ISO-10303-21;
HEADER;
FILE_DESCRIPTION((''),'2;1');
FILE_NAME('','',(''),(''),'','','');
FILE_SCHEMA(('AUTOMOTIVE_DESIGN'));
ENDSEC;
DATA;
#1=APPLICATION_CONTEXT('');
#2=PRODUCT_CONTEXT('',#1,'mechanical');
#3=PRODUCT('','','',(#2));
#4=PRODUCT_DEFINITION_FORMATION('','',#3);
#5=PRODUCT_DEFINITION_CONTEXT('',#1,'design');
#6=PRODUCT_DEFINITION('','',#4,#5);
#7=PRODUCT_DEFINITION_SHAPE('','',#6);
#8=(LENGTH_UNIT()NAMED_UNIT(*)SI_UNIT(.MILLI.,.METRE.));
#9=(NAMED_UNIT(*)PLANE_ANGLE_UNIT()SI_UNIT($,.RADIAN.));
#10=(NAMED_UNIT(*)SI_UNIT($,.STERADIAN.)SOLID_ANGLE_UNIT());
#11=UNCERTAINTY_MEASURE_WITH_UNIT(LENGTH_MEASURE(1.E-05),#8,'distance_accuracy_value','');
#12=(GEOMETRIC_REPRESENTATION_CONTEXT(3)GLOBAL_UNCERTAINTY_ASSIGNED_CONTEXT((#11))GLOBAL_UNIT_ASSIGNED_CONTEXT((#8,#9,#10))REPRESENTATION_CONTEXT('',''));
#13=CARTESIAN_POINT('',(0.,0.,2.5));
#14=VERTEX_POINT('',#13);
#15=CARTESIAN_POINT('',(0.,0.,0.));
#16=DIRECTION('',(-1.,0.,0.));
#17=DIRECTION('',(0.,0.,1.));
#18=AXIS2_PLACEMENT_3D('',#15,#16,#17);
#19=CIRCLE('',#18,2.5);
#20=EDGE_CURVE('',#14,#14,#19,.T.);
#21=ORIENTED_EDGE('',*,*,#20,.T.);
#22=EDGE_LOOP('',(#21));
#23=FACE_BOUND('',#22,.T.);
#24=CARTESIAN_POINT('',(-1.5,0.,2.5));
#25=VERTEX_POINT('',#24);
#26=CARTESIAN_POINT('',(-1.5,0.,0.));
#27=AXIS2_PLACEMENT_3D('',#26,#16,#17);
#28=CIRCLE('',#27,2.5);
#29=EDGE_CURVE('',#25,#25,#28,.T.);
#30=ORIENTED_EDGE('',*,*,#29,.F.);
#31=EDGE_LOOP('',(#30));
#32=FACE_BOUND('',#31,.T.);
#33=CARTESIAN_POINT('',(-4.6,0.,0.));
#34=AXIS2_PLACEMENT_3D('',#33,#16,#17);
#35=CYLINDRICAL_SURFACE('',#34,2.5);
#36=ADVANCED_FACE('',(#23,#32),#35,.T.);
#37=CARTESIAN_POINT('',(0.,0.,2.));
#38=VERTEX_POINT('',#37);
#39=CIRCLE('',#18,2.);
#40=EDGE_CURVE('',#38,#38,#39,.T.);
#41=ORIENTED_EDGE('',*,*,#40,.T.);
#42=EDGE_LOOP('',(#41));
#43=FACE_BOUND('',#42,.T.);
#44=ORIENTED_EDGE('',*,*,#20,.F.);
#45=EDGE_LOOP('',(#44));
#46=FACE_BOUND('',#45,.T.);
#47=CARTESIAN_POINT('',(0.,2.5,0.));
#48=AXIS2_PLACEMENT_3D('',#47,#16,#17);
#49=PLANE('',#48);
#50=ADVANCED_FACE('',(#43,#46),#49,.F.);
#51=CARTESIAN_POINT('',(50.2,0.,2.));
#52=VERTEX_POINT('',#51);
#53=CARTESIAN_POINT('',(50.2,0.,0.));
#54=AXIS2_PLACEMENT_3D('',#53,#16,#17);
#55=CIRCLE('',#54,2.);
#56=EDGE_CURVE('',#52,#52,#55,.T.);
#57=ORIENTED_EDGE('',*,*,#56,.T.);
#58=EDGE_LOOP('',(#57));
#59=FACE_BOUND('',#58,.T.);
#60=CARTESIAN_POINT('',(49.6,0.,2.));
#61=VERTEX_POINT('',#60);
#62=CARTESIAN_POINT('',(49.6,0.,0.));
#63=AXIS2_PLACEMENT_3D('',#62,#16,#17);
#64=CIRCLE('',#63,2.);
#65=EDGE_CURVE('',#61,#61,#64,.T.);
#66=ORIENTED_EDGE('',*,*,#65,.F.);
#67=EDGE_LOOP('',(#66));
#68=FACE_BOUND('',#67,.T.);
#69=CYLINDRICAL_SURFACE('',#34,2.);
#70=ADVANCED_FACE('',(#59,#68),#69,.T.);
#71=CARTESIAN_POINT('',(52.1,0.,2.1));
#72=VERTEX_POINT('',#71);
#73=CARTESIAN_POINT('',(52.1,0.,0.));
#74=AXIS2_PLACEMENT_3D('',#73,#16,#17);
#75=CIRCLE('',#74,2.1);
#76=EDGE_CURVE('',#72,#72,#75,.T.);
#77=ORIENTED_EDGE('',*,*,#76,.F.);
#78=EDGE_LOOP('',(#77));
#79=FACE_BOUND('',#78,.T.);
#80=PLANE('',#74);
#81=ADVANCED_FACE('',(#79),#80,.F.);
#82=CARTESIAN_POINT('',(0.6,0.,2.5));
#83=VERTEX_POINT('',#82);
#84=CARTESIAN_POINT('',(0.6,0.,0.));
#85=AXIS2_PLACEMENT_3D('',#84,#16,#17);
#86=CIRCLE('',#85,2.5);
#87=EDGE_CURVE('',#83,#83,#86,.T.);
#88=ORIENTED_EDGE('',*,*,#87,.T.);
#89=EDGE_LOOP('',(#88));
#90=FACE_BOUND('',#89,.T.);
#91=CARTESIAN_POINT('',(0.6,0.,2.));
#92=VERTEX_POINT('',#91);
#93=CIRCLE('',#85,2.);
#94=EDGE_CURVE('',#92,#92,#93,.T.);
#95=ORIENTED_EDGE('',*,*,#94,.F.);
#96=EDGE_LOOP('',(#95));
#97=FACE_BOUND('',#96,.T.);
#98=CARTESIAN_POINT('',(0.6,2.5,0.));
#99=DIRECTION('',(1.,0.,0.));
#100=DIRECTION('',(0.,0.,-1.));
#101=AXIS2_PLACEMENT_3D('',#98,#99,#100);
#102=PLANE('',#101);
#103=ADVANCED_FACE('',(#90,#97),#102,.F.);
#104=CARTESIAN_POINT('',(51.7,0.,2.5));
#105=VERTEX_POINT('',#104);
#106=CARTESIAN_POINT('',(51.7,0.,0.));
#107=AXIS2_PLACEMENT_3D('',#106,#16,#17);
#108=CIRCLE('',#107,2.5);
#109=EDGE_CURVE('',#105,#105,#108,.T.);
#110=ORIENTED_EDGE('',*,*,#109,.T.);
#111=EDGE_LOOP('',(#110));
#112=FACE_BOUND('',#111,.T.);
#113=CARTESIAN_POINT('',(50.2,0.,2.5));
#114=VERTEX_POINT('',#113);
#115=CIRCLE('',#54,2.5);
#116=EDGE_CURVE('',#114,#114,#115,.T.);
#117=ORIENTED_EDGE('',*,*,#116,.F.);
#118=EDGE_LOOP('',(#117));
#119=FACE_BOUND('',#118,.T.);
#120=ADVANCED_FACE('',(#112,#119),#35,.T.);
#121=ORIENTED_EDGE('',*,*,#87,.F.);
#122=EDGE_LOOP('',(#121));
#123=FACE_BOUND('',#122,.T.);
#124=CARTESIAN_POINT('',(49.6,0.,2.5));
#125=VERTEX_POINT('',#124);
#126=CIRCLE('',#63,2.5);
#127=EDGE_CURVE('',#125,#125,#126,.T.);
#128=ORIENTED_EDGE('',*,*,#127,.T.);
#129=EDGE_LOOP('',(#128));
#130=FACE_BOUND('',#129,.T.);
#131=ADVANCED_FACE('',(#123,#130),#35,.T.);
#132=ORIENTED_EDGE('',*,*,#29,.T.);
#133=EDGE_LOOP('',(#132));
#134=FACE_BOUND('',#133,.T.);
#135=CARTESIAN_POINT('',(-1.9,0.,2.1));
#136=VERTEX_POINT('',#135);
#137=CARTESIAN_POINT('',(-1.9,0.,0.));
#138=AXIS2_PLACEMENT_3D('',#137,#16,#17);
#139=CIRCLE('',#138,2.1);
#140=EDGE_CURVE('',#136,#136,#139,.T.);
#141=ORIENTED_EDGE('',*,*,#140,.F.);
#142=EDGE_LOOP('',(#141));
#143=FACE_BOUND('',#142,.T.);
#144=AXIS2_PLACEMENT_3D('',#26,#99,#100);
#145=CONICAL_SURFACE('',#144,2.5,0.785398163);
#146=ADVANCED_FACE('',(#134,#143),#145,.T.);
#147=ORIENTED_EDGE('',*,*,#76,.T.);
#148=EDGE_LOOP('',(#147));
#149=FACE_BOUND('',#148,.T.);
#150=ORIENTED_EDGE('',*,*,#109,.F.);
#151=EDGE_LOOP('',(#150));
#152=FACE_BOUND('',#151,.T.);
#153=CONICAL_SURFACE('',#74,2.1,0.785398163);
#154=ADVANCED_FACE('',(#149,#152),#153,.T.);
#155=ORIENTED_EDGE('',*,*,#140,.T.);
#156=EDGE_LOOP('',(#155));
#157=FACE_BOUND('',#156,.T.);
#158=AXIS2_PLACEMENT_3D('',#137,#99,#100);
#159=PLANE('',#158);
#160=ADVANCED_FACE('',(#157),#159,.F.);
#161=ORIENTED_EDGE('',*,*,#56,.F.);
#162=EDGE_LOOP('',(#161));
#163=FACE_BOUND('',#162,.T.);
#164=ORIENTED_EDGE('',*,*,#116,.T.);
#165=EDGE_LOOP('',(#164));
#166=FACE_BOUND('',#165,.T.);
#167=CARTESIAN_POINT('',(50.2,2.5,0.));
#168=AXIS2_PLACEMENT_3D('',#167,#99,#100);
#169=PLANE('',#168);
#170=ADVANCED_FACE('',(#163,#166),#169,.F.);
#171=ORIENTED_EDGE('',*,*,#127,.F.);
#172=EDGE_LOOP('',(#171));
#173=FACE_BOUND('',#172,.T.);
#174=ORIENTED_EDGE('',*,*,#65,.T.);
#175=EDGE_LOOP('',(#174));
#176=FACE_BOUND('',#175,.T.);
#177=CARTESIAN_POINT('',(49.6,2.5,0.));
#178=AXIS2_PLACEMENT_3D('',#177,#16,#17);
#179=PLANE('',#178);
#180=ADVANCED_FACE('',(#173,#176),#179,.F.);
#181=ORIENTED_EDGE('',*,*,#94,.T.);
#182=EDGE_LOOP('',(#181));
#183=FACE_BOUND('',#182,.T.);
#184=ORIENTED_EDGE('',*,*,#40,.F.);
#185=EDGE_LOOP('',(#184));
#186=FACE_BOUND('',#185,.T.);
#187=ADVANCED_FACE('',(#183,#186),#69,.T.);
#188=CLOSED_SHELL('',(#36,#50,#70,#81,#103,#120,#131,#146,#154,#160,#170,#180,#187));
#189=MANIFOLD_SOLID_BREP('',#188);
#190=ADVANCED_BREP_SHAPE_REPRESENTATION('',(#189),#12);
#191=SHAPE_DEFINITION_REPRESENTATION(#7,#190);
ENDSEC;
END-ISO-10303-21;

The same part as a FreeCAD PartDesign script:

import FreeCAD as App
import Part
import Sketcher

V = App.Vector


def add_polygon(sketch, points):
    """Adds a closed chain of lines whose ends are joined by coincident constraints."""
    first, n = sketch.GeometryCount, len(points)
    for a, b in zip(points, points[1:] + points[:1]):
        sketch.addGeometry(Part.LineSegment(App.Vector(*a, 0), App.Vector(*b, 0)), False)
    for i in range(n):
        sketch.addConstraint(Sketcher.Constraint("Coincident", first + i, 2, first + (i + 1) % n, 1))

doc = App.newDocument("Part")
body = doc.addObject("PartDesign::Body", "Body")

# Sketch on XY plane
sketch1 = body.newObject("Sketcher::SketchObject", "Sketch")
sketch1.AttachmentSupport = (doc.getObject("XY_Plane"), [""])
sketch1.MapMode = "FlatFace"
add_polygon(sketch1, [(49.6, 2.5), (0.6, 2.5), (0.6, 2), (0, 2), (0, 2.5), (-1.5, 2.5), (-1.9, 2.1), (-1.9, 0), (52.1, 0), (52.1, 2.1), (51.7, 2.5), (50.2, 2.5), (50.2, 2), (49.6, 2)])  # lines 0-13
sketch1.addConstraint(Sketcher.Constraint("Horizontal", 0))
sketch1.addConstraint(Sketcher.Constraint("Vertical", 1))
sketch1.addConstraint(Sketcher.Constraint("Horizontal", 2))
sketch1.addConstraint(Sketcher.Constraint("Vertical", 3))
sketch1.addConstraint(Sketcher.Constraint("Horizontal", 4))
sketch1.addConstraint(Sketcher.Constraint("Vertical", 6))
sketch1.addConstraint(Sketcher.Constraint("Horizontal", 7))
sketch1.addConstraint(Sketcher.Constraint("Vertical", 8))
sketch1.addConstraint(Sketcher.Constraint("Horizontal", 10))
sketch1.addConstraint(Sketcher.Constraint("Vertical", 11))
sketch1.addConstraint(Sketcher.Constraint("Horizontal", 12))
sketch1.addConstraint(Sketcher.Constraint("Vertical", 13))
sketch1.addConstraint(Sketcher.Constraint("PointOnObject", 2, 2, -2))
sketch1.addConstraint(Sketcher.Constraint("PointOnObject", 6, 2, -1))
sketch1.addConstraint(Sketcher.Constraint("Perpendicular", 5, 9))
sketch1.addConstraint(Sketcher.Constraint("Horizontal", 0, 2, 3, 2))
sketch1.addConstraint(Sketcher.Constraint("Horizontal", 5, 2, 8, 2))
sketch1.addConstraint(Sketcher.Constraint("Horizontal", 4, 2, 9, 2))
sketch1.addConstraint(Sketcher.Constraint("Horizontal", 2, 2, 11, 2))
sketch1.addConstraint(Sketcher.Constraint("Equal", 4, 10))
sketch1.addConstraint(Sketcher.Constraint("Equal", 2, 12))
sketch1.addConstraint(Sketcher.Constraint("Equal", 5, 9))
sketch1.addConstraint(Sketcher.Constraint("DistanceX", 0, 2, 0, 1, 49.0))
sketch1.addConstraint(Sketcher.Constraint("DistanceX", 7, 1, 7, 2, 54.0))
sketch1.addConstraint(Sketcher.Constraint("DistanceX", 2, 2, 2, 1, 0.6))
sketch1.addConstraint(Sketcher.Constraint("DistanceX", 4, 2, 4, 1, 1.5))
sketch1.addConstraint(Sketcher.Constraint("DistanceY", 1, 2, 1, 1, 0.5))
sketch1.addConstraint(Sketcher.Constraint("DistanceY", 6, 2, 6, 1, 2.1))
revolution = body.newObject("PartDesign::Revolution", "Revolution")
revolution.Profile = sketch1
revolution.ReferenceAxis = (sketch1, ["H_Axis"])
revolution.Angle = 360

doc.recompute()
